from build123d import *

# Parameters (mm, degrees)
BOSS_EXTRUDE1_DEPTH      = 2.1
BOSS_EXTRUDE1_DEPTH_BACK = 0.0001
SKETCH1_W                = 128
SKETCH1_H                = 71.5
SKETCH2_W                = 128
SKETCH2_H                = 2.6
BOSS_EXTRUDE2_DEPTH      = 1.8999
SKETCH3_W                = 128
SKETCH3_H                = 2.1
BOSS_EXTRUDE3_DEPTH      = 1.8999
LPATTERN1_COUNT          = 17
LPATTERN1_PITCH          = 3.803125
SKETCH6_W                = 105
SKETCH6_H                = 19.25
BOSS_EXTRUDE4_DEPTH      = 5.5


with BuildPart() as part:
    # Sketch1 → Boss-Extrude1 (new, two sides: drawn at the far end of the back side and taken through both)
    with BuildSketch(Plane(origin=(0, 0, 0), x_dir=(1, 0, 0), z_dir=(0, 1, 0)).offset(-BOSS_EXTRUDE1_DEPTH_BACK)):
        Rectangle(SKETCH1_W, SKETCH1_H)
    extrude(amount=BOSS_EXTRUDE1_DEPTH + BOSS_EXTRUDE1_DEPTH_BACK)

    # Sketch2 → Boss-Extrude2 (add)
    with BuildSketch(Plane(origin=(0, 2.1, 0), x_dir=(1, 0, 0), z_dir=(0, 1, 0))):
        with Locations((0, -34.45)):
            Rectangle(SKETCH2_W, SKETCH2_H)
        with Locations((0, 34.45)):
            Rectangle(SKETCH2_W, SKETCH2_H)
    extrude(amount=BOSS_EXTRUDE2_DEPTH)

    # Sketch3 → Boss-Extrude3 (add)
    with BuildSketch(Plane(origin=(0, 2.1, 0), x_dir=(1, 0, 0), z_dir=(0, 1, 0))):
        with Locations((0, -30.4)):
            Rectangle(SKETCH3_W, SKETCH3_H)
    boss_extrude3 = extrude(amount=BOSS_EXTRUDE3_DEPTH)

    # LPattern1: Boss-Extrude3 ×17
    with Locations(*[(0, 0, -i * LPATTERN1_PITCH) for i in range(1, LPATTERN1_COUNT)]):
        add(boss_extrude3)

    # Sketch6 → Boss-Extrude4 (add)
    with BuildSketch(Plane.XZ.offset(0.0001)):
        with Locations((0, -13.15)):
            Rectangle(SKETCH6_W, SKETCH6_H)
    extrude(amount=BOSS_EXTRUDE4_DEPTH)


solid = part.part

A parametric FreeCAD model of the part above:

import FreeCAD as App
import Part
import Sketcher

V = App.Vector
Q = App.Units.Quantity

doc = App.newDocument("Part")
body = doc.addObject("PartDesign::Body", "Body")

# Sketch on XZ plane
sketch1 = body.newObject("Sketcher::SketchObject", "Sketch")
sketch1.AttachmentSupport = (doc.getObject("XZ_Plane"), [""])
sketch1.MapMode = "FlatFace"
sketch1.addGeometry(Part.LineSegment(V(-64, -35.75, 0), V(-64, 35.75, 0)), False)
sketch1.addGeometry(Part.LineSegment(V(-64, 35.75, 0), V(64, 35.75, 0)), False)
sketch1.addGeometry(Part.LineSegment(V(64, 35.75, 0), V(64, -35.75, 0)), False)
sketch1.addGeometry(Part.LineSegment(V(64, -35.75, 0), V(-64, -35.75, 0)), False)
sketch1.addConstraint(Sketcher.Constraint("Coincident", 0, 2, 1, 1))
sketch1.addConstraint(Sketcher.Constraint("Coincident", 1, 2, 2, 1))
sketch1.addConstraint(Sketcher.Constraint("Coincident", 2, 2, 3, 1))
sketch1.addConstraint(Sketcher.Constraint("Coincident", 3, 2, 0, 1))
sketch1.addConstraint(Sketcher.Constraint("Vertical", 0))
sketch1.addConstraint(Sketcher.Constraint("Horizontal", 1))
sketch1.addConstraint(Sketcher.Constraint("Vertical", 2))
sketch1.addConstraint(Sketcher.Constraint("Horizontal", 3))
sketch1.addConstraint(Sketcher.Constraint("Symmetric", 0, 2, 2, 2, -1, 1))
sketch1.addConstraint(Sketcher.Constraint("DistanceX", 1, 1, 1, 2, Q("128 mm")))
sketch1.addConstraint(Sketcher.Constraint("DistanceY", 0, 1, 0, 2, Q("71.5 mm")))
pad1 = body.newObject("PartDesign::Pad", "Pad")
pad1.Profile = sketch1
pad1.Type = "TwoLengths"
pad1.Length = 2.1
pad1.Length2 = 0.0001
pad1.Reversed = True

# Sketch on XZ plane
sketch2 = body.newObject("Sketcher::SketchObject", "Sketch001")
sketch2.AttachmentSupport = (doc.getObject("XZ_Plane"), [""])
sketch2.MapMode = "FlatFace"
sketch2.AttachmentOffset = App.Placement(V(0, 0, -2.1), App.Rotation())
sketch2.addGeometry(Part.LineSegment(V(-64, 33.15, 0), V(-64, 35.75, 0)), False)
sketch2.addGeometry(Part.LineSegment(V(-64, 35.75, 0), V(64, 35.75, 0)), False)
sketch2.addGeometry(Part.LineSegment(V(64, 35.75, 0), V(64, 33.15, 0)), False)
sketch2.addGeometry(Part.LineSegment(V(64, 33.15, 0), V(-64, 33.15, 0)), False)
sketch2.addGeometry(Part.LineSegment(V(-64, -35.75, 0), V(-64, -33.15, 0)), False)
sketch2.addGeometry(Part.LineSegment(V(-64, -33.15, 0), V(64, -33.15, 0)), False)
sketch2.addGeometry(Part.LineSegment(V(64, -33.15, 0), V(64, -35.75, 0)), False)
sketch2.addGeometry(Part.LineSegment(V(64, -35.75, 0), V(-64, -35.75, 0)), False)
sketch2.addConstraint(Sketcher.Constraint("Coincident", 0, 2, 1, 1))
sketch2.addConstraint(Sketcher.Constraint("Coincident", 1, 2, 2, 1))
sketch2.addConstraint(Sketcher.Constraint("Coincident", 2, 2, 3, 1))
sketch2.addConstraint(Sketcher.Constraint("Coincident", 3, 2, 0, 1))
sketch2.addConstraint(Sketcher.Constraint("Coincident", 4, 2, 5, 1))
sketch2.addConstraint(Sketcher.Constraint("Coincident", 5, 2, 6, 1))
sketch2.addConstraint(Sketcher.Constraint("Coincident", 6, 2, 7, 1))
sketch2.addConstraint(Sketcher.Constraint("Coincident", 7, 2, 4, 1))
sketch2.addConstraint(Sketcher.Constraint("Vertical", 0))
sketch2.addConstraint(Sketcher.Constraint("Horizontal", 1))
sketch2.addConstraint(Sketcher.Constraint("Vertical", 2))
sketch2.addConstraint(Sketcher.Constraint("Horizontal", 3))
sketch2.addConstraint(Sketcher.Constraint("Vertical", 4))
sketch2.addConstraint(Sketcher.Constraint("Horizontal", 5))
sketch2.addConstraint(Sketcher.Constraint("Vertical", 6))
sketch2.addConstraint(Sketcher.Constraint("Horizontal", 7))
sketch2.addConstraint(Sketcher.Constraint("Symmetric", 2, 2, 4, 2, -1, 1))
sketch2.addConstraint(Sketcher.Constraint("Symmetric", 0, 2, 6, 2, -1, 1))
sketch2.addConstraint(Sketcher.Constraint("Vertical", 3, 2, 4, 2))
sketch2.addConstraint(Sketcher.Constraint("DistanceX", 1, 1, 1, 2, Q("128 mm")))
sketch2.addConstraint(Sketcher.Constraint("DistanceY", 0, 1, 0, 2, Q("2.6 mm")))
sketch2.addConstraint(Sketcher.Constraint("DistanceY", 4, 2, 3, 2, Q("66.3 mm")))
pad2 = body.newObject("PartDesign::Pad", "Pad001")
pad2.Profile = sketch2
pad2.Length = 1.8999
pad2.Reversed = True

# Sketch on XZ plane
sketch3 = body.newObject("Sketcher::SketchObject", "Sketch002")
sketch3.AttachmentSupport = (doc.getObject("XZ_Plane"), [""])
sketch3.MapMode = "FlatFace"
sketch3.AttachmentOffset = App.Placement(V(0, 0, -2.1), App.Rotation())
sketch3.addGeometry(Part.LineSegment(V(-64, 29.35, 0), V(-64, 31.45, 0)), False)
sketch3.addGeometry(Part.LineSegment(V(-64, 31.45, 0), V(64, 31.45, 0)), False)
sketch3.addGeometry(Part.LineSegment(V(64, 31.45, 0), V(64, 29.35, 0)), False)
sketch3.addGeometry(Part.LineSegment(V(64, 29.35, 0), V(-64, 29.35, 0)), False)
sketch3.addConstraint(Sketcher.Constraint("Coincident", 0, 2, 1, 1))
sketch3.addConstraint(Sketcher.Constraint("Coincident", 1, 2, 2, 1))
sketch3.addConstraint(Sketcher.Constraint("Coincident", 2, 2, 3, 1))
sketch3.addConstraint(Sketcher.Constraint("Coincident", 3, 2, 0, 1))
sketch3.addConstraint(Sketcher.Constraint("Vertical", 0))
sketch3.addConstraint(Sketcher.Constraint("Horizontal", 1))
sketch3.addConstraint(Sketcher.Constraint("Vertical", 2))
sketch3.addConstraint(Sketcher.Constraint("Horizontal", 3))
sketch3.addConstraint(Sketcher.Constraint("DistanceX", 1, 1, 1, 2, Q("128 mm")))
sketch3.addConstraint(Sketcher.Constraint("DistanceY", 0, 1, 0, 2, Q("2.1 mm")))
sketch3.addConstraint(Sketcher.Constraint("DistanceX", 0, 2, -1, 1, Q("64 mm")))
sketch3.addConstraint(Sketcher.Constraint("DistanceY", -1, 1, 0, 2, Q("31.45 mm")))
pad3 = body.newObject("PartDesign::Pad", "Pad002")
pad3.Profile = sketch3
pad3.Length = 1.8999
pad3.Reversed = True
doc.recompute()

linearpattern = body.newObject("PartDesign::LinearPattern", "LinearPattern")
linearpattern.Originals = [pad3]
linearpattern.Direction = (doc.getObject("Z_Axis"), [""])
linearpattern.Mode = "offset"
linearpattern.Offset = 3.803125
linearpattern.Occurrences = 17
linearpattern.Reversed = True
body.Tip = linearpattern

# Sketch on XZ plane
sketch4 = body.newObject("Sketcher::SketchObject", "Sketch003")
sketch4.AttachmentSupport = (doc.getObject("XZ_Plane"), [""])
sketch4.MapMode = "FlatFace"
sketch4.AttachmentOffset = App.Placement(V(0, 0, 0.0001), App.Rotation())
sketch4.addGeometry(Part.LineSegment(V(-52.5, -3.525, 0), V(-52.5, -22.775, 0)), False)
sketch4.addGeometry(Part.LineSegment(V(-52.5, -22.775, 0), V(52.5, -22.775, 0)), False)
sketch4.addGeometry(Part.LineSegment(V(52.5, -22.775, 0), V(52.5, -3.525, 0)), False)
sketch4.addGeometry(Part.LineSegment(V(52.5, -3.525, 0), V(-52.5, -3.525, 0)), False)
sketch4.addConstraint(Sketcher.Constraint("Coincident", 0, 2, 1, 1))
sketch4.addConstraint(Sketcher.Constraint("Coincident", 1, 2, 2, 1))
sketch4.addConstraint(Sketcher.Constraint("Coincident", 2, 2, 3, 1))
sketch4.addConstraint(Sketcher.Constraint("Coincident", 3, 2, 0, 1))
sketch4.addConstraint(Sketcher.Constraint("Vertical", 0))
sketch4.addConstraint(Sketcher.Constraint("Horizontal", 1))
sketch4.addConstraint(Sketcher.Constraint("Vertical", 2))
sketch4.addConstraint(Sketcher.Constraint("Horizontal", 3))
sketch4.addConstraint(Sketcher.Constraint("DistanceX", 1, 1, 1, 2, Q("105 mm")))
sketch4.addConstraint(Sketcher.Constraint("DistanceY", 0, 2, 0, 1, Q("19.25 mm")))
sketch4.addConstraint(Sketcher.Constraint("DistanceX", 0, 2, -1, 1, Q("52.5 mm")))
sketch4.addConstraint(Sketcher.Constraint("DistanceY", 0, 2, -1, 1, Q("22.775 mm")))
pad4 = body.newObject("PartDesign::Pad", "Pad003")
pad4.Profile = sketch4
pad4.Length = 5.5

doc.recompute()
